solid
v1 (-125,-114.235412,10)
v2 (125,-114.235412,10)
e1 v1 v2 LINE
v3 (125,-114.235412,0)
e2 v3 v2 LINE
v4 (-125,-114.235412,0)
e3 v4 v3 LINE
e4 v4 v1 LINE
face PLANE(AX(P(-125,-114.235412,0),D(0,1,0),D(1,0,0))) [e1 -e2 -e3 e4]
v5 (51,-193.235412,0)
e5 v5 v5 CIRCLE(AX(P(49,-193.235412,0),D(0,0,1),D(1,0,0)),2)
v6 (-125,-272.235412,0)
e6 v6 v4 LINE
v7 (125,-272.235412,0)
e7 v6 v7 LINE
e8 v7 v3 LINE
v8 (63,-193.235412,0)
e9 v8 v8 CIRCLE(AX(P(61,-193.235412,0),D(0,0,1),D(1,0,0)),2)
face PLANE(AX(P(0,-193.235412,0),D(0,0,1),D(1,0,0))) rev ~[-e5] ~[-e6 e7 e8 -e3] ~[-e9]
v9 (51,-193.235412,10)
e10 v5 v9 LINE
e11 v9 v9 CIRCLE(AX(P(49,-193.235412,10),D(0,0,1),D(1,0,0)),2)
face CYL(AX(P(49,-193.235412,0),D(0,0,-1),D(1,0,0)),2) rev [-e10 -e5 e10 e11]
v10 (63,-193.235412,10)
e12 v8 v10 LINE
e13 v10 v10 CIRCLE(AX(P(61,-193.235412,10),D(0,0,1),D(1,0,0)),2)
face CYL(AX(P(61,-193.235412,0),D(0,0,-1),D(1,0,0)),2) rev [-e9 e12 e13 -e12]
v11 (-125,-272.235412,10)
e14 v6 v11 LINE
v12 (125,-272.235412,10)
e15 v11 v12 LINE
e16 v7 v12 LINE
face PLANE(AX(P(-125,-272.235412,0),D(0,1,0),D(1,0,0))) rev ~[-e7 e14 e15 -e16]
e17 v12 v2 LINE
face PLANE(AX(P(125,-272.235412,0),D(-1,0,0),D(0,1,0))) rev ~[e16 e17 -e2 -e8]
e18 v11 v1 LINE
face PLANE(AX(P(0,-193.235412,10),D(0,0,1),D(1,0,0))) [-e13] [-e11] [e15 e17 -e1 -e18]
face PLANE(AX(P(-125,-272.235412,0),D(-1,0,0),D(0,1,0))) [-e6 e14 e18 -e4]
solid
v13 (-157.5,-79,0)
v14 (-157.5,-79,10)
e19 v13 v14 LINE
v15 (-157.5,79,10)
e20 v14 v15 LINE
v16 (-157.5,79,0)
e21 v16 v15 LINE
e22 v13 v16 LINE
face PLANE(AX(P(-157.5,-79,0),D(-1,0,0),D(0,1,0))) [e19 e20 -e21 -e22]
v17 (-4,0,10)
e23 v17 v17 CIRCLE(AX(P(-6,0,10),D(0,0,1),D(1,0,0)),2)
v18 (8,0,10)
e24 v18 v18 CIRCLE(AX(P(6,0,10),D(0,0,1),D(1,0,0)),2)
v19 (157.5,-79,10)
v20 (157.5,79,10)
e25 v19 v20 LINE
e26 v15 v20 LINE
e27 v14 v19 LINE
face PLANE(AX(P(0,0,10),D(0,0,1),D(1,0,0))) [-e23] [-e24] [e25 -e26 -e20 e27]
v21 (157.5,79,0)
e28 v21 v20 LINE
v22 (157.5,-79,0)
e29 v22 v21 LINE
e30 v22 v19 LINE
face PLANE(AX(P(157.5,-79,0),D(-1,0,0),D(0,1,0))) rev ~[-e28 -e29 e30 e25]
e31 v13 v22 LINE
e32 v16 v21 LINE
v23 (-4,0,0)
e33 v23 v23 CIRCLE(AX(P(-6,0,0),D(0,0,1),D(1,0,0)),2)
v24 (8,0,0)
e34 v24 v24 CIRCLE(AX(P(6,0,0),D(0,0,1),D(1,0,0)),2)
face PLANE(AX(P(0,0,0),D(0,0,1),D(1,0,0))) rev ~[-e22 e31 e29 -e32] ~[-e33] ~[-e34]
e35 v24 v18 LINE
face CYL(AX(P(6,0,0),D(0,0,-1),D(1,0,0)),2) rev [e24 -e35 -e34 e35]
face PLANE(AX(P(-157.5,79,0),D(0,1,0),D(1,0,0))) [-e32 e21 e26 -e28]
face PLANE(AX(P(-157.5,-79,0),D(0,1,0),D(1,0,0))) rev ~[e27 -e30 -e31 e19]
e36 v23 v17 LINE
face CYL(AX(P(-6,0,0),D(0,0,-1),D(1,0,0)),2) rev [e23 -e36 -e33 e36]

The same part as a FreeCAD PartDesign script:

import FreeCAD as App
import Part
import Sketcher

V = App.Vector
Q = App.Units.Quantity


def add_polygon(sketch, points):
    """Adds a closed chain of lines whose ends are joined by coincident constraints."""
    first, n = sketch.GeometryCount, len(points)
    for a, b in zip(points, points[1:] + points[:1]):
        sketch.addGeometry(Part.LineSegment(App.Vector(*a, 0), App.Vector(*b, 0)), False)
    for i in range(n):
        sketch.addConstraint(Sketcher.Constraint("Coincident", first + i, 2, first + (i + 1) % n, 1))

doc = App.newDocument("Part")
body = doc.addObject("PartDesign::Body", "Body")
body.AllowCompound = True

# Sketch on XY plane
sketch1 = body.newObject("Sketcher::SketchObject", "Sketch")
sketch1.AttachmentSupport = (doc.getObject("XY_Plane"), [""])
sketch1.MapMode = "FlatFace"
add_polygon(sketch1, [(-157.5, 79), (-157.5, -79), (157.5, -79), (157.5, 79)])  # lines 0-3
sketch1.addGeometry(Part.Circle(V(-6, 0, 0), V(0, 0, 1), 2), False)  # 4
sketch1.addGeometry(Part.Circle(V(6, 0, 0), V(0, 0, 1), 2), False)  # 5
add_polygon(sketch1, [(-125, -114.2), (-125, -272.2), (125, -272.2), (125, -114.2)])  # lines 6-9
sketch1.addGeometry(Part.Circle(V(49, -193.2, 0), V(0, 0, 1), 2), False)  # 10
sketch1.addGeometry(Part.Circle(V(61, -193.2, 0), V(0, 0, 1), 2), False)  # 11
sketch1.addConstraint([
    Sketcher.Constraint("Vertical", 0),
    Sketcher.Constraint("Horizontal", 1),
    Sketcher.Constraint("Vertical", 2),
    Sketcher.Constraint("Horizontal", 3),
    Sketcher.Constraint("Vertical", 6),
    Sketcher.Constraint("Horizontal", 7),
    Sketcher.Constraint("Vertical", 8),
    Sketcher.Constraint("Horizontal", 9),
    Sketcher.Constraint("Equal", 4, 5),
    Sketcher.Constraint("Equal", 5, 10),
    Sketcher.Constraint("Equal", 10, 11),
    Sketcher.Constraint("Symmetric", 4, 3, 5, 3, -1, 1),
    Sketcher.Constraint("Symmetric", 0, 2, 2, 2, -1, 1),
    Sketcher.Constraint("PointOnObject", 4, 3, -1),
    Sketcher.Constraint("Horizontal", 10, 3, 11, 3),
    Sketcher.Constraint("Equal", 2, 6),
    Sketcher.Constraint("Diameter", 4, Q("4 mm")),
    Sketcher.Constraint("DistanceX", 1, 1, 1, 2, Q("315 mm")),
    Sketcher.Constraint("DistanceX", 7, 1, 7, 2, Q("250 mm")),
    Sketcher.Constraint("DistanceY", 0, 2, 0, 1, Q("158 mm")),
    Sketcher.Constraint("DistanceX", 4, 3, -1, 1, Q("6 mm")),
    Sketcher.Constraint("DistanceX", -1, 1, 10, 3, Q("49 mm")),
    Sketcher.Constraint("DistanceX", -1, 1, 11, 3, Q("61 mm")),
    Sketcher.Constraint("DistanceX", 6, 2, -1, 1, Q("125 mm")),
    Sketcher.Constraint("DistanceY", 6, 2, 10, 3, Q("79 mm")),
    Sketcher.Constraint("DistanceY", 10, 3, -1, 1, Q("193.235412 mm")),
])
pad1 = body.newObject("PartDesign::Pad", "Pad")
pad1.Profile = sketch1
pad1.Length = 10

doc.recompute()
